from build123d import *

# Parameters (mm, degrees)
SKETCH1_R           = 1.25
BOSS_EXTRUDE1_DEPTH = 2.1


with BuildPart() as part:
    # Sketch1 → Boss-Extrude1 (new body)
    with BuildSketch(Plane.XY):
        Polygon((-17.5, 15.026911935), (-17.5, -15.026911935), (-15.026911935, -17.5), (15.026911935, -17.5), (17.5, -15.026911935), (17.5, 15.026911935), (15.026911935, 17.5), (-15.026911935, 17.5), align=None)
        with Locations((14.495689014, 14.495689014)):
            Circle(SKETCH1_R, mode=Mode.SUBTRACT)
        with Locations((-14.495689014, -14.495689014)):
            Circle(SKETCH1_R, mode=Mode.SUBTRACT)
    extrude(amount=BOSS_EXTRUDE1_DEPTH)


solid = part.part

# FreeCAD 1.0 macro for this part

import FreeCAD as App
import Part
import Sketcher
from FreeCAD import Vector
Q = App.Units.Quantity


def add_polygon(sketch, points):
    """Adds a closed chain of lines whose ends are joined by coincident constraints."""
    first, n = sketch.GeometryCount, len(points)
    for a, b in zip(points, points[1:] + points[:1]):
        sketch.addGeometry(Part.LineSegment(App.Vector(*a, 0), App.Vector(*b, 0)), False)
    for i in range(n):
        sketch.addConstraint(Sketcher.Constraint("Coincident", first + i, 2, first + (i + 1) % n, 1))

doc = App.newDocument("Part")
body = doc.addObject("PartDesign::Body", "Body")

# Sketch on XY plane
sketch1 = body.newObject("Sketcher::SketchObject", "Sketch")
sketch1.AttachmentSupport = (doc.getObject("XY_Plane"), [""])
sketch1.MapMode = "FlatFace"
add_polygon(sketch1, [(-17.5, 15.026912), (-17.5, -15.026912), (-15.026912, -17.5), (15.026912, -17.5), (17.5, -15.026912), (17.5, 15.026912), (15.026912, 17.5), (-15.026912, 17.5)])  # lines 0-7
sketch1.addGeometry(Part.Circle(Vector(-14.495689, -14.495689, 0), Vector(0, 0, 1), 1.25), False)  # 8
sketch1.addGeometry(Part.Circle(Vector(14.495689, 14.495689, 0), Vector(0, 0, 1), 1.25), False)  # 9
sketch1.addConstraint(Sketcher.Constraint("Vertical", 0))
sketch1.addConstraint(Sketcher.Constraint("Horizontal", 2))
sketch1.addConstraint(Sketcher.Constraint("Vertical", 4))
sketch1.addConstraint(Sketcher.Constraint("Horizontal", 6))
sketch1.addConstraint(Sketcher.Constraint("Equal", 8, 9))
sketch1.addConstraint(Sketcher.Constraint("Symmetric", 8, 3, 9, 3, -1, 1))
sketch1.addConstraint(Sketcher.Constraint("Symmetric", 0, 2, 4, 2, -1, 1))
sketch1.addConstraint(Sketcher.Constraint("Symmetric", 1, 2, 5, 2, -1, 1))
sketch1.addConstraint(Sketcher.Constraint("Perpendicular", 1, 3))
sketch1.addConstraint(Sketcher.Constraint("Perpendicular", 5, 7))
sketch1.addConstraint(Sketcher.Constraint("Horizontal", 0, 2, 3, 2))
sketch1.addConstraint(Sketcher.Constraint("Horizontal", 4, 2, 7, 2))
sketch1.addConstraint(Sketcher.Constraint("Vertical", 2, 2, 5, 2))
sketch1.addConstraint(Sketcher.Constraint("Equal", 6, 0))
sketch1.addConstraint(Sketcher.Constraint("Diameter", 8, Q("2.5 mm")))
sketch1.addConstraint(Sketcher.Constraint("DistanceX", 0, 2, 3, 2, Q("35 mm")))
sketch1.addConstraint(Sketcher.Constraint("DistanceY", 0, 2, 9, 3, Q("29.522601 mm")))
sketch1.addConstraint(Sketcher.Constraint("DistanceX", 1, 2, 9, 3, Q("29.522601 mm")))
sketch1.addConstraint(Sketcher.Constraint("DistanceX", 2, 1, 2, 2, Q("30.053824 mm")))
pad1 = body.newObject("PartDesign::Pad", "Pad")
pad1.Profile = sketch1
pad1.Length = 2.1

doc.recompute()
